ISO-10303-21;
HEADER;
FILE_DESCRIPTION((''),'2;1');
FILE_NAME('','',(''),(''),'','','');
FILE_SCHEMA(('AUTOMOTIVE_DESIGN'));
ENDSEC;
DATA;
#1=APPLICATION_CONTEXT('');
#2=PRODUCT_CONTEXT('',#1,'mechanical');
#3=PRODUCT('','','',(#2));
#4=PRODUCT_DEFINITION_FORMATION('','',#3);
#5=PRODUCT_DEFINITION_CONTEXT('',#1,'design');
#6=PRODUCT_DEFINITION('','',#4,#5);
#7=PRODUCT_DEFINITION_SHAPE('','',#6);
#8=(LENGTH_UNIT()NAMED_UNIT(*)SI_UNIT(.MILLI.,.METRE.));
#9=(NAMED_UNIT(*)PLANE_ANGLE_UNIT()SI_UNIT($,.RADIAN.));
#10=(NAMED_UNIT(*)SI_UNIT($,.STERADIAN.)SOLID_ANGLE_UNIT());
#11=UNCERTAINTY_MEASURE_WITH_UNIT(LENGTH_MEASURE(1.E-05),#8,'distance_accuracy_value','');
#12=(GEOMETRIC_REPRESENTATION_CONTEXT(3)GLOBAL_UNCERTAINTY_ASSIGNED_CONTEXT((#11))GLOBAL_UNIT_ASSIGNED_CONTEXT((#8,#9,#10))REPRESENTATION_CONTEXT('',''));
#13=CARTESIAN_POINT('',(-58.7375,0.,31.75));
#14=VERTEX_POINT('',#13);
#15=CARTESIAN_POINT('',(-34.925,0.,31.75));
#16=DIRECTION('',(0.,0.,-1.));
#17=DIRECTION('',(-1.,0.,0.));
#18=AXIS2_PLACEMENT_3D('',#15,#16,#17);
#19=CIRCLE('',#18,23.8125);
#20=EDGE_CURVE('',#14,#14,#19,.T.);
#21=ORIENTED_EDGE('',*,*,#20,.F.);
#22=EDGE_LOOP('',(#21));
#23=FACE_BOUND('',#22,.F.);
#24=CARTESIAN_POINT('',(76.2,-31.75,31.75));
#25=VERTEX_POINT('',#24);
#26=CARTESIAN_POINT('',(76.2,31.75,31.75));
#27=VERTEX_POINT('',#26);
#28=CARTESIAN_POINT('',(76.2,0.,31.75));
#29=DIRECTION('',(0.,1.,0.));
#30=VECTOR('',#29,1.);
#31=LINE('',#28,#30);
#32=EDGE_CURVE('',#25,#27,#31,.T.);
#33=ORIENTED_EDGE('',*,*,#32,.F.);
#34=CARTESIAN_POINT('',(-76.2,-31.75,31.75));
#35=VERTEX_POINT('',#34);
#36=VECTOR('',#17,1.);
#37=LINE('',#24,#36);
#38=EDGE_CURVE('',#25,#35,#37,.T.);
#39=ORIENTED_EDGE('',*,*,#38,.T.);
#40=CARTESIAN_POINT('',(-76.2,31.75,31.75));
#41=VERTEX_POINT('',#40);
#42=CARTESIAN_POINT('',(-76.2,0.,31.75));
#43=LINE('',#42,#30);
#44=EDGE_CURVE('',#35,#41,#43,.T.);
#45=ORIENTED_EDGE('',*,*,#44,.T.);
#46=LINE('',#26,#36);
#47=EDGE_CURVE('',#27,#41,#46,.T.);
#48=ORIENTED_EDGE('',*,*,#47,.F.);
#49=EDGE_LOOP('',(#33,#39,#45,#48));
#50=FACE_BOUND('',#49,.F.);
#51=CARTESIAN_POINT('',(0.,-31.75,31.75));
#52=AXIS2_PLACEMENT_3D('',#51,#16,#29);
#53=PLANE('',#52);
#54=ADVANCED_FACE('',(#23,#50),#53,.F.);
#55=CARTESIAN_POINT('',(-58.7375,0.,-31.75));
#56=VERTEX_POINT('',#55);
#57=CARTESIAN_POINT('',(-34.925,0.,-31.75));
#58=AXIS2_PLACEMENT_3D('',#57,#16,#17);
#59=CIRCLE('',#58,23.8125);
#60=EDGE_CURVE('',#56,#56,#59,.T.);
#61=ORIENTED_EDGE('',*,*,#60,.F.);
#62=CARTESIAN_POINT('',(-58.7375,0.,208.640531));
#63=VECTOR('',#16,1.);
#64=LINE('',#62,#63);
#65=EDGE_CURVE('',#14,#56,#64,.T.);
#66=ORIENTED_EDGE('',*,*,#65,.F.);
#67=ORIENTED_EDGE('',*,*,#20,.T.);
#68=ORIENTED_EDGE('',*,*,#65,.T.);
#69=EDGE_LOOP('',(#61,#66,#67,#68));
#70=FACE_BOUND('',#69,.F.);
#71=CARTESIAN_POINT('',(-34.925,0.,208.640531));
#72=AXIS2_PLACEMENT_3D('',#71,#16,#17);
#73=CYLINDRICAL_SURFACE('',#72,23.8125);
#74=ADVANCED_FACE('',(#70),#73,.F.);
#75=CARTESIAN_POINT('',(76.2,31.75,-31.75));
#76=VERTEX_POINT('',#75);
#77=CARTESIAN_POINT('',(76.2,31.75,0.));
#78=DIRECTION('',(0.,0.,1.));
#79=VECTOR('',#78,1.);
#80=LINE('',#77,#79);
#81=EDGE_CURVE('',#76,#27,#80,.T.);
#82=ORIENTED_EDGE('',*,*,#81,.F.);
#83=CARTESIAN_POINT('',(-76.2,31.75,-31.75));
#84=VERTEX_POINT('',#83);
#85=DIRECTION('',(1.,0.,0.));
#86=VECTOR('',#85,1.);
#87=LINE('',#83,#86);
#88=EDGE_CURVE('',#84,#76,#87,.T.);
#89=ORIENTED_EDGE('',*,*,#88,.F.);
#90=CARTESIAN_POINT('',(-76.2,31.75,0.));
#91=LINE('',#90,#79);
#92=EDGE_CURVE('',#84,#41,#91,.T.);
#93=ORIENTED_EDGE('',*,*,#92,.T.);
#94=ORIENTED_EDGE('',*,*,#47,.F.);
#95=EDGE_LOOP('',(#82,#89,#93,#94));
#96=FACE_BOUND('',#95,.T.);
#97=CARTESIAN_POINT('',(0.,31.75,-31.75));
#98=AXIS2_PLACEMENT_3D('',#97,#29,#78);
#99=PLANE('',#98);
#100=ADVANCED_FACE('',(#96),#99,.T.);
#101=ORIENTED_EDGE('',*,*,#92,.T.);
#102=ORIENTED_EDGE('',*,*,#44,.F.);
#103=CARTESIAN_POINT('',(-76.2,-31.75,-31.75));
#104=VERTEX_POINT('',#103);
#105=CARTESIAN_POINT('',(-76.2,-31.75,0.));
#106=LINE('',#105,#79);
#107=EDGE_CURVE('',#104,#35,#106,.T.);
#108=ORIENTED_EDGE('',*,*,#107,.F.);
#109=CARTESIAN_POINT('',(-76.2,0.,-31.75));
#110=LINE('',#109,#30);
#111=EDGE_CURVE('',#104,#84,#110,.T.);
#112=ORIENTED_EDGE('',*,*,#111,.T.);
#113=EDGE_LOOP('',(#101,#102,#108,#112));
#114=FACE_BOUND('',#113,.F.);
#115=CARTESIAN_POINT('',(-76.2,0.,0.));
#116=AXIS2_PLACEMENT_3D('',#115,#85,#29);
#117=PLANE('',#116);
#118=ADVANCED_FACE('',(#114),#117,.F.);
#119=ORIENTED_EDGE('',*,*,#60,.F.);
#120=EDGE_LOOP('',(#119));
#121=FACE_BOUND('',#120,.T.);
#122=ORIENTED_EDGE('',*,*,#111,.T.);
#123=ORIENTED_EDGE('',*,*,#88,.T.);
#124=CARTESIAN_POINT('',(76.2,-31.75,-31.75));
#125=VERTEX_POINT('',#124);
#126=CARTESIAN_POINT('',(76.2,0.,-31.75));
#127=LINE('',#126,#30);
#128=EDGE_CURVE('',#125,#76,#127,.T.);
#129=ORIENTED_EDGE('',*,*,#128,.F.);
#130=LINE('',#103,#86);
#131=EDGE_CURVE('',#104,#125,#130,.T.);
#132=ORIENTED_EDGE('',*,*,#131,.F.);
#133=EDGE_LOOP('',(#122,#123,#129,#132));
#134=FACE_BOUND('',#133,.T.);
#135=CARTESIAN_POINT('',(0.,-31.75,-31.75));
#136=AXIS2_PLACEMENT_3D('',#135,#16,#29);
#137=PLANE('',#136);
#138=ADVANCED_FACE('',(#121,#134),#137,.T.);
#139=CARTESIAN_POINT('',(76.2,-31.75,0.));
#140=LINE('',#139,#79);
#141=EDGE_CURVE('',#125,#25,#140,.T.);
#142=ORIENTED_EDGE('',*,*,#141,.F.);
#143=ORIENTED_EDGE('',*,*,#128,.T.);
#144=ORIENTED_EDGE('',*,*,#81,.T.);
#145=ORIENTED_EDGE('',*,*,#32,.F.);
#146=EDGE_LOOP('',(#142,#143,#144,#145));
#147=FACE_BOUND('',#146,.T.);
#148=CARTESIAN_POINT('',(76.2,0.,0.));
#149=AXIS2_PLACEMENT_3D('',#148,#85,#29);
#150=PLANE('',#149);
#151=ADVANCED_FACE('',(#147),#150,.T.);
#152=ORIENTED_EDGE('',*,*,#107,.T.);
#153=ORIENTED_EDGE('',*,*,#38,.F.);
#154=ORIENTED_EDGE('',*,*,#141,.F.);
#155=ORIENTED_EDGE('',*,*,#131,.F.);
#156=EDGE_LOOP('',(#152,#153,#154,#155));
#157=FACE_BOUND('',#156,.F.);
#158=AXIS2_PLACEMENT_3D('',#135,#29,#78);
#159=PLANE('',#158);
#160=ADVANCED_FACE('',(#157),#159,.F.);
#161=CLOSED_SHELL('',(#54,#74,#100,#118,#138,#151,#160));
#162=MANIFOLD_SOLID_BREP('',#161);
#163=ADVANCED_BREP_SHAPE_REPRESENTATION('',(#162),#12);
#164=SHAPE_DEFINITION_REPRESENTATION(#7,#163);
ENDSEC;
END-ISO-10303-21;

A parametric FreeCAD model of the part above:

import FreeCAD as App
import Part
import Sketcher
from FreeCAD import Vector
Q = App.Units.Quantity


def add_polygon(sketch, points):
    """Adds a closed chain of lines whose ends are joined by coincident constraints."""
    first, n = sketch.GeometryCount, len(points)
    for a, b in zip(points, points[1:] + points[:1]):
        sketch.addGeometry(Part.LineSegment(App.Vector(*a, 0), App.Vector(*b, 0)), False)
    for i in range(n):
        sketch.addConstraint(Sketcher.Constraint("Coincident", first + i, 2, first + (i + 1) % n, 1))

doc = App.newDocument("Part")
body = doc.addObject("PartDesign::Body", "Body")

# Sketch on YZ plane
sketch1 = body.newObject("Sketcher::SketchObject", "Sketch")
sketch1.AttachmentSupport = (doc.getObject("YZ_Plane"), [""])
sketch1.MapMode = "FlatFace"
add_polygon(sketch1, [(-31.75, 31.75), (-31.75, -31.75), (31.75, -31.75), (31.75, 31.75)])  # lines 0-3
sketch1.addConstraint([
    Sketcher.Constraint("Vertical", 0),
    Sketcher.Constraint("Horizontal", 1),
    Sketcher.Constraint("Vertical", 2),
    Sketcher.Constraint("Horizontal", 3),
    Sketcher.Constraint("Symmetric", 0, 2, 2, 2, -1, 1),
    Sketcher.Constraint("Equal", 3, 0),
    Sketcher.Constraint("DistanceX", 1, 1, 1, 2, Q("2.5 in")),
])
pad1 = body.newObject("PartDesign::Pad", "Pad")
pad1.Profile = sketch1
pad1.Length = Q("6 in")
pad1.Midplane = True

# Sketch on XY plane
sketch2 = body.newObject("Sketcher::SketchObject", "Sketch001")
sketch2.AttachmentSupport = (doc.getObject("XY_Plane"), [""])
sketch2.MapMode = "FlatFace"
sketch2.AttachmentOffset = App.Placement(Vector(0, 0, 1.25 * 25.4), App.Rotation())
sketch2.addGeometry(Part.Circle(Vector(-34.925, 0, 0), Vector(0, 0, 1), 23.8125), False)
sketch2.addConstraint([
    Sketcher.Constraint("PointOnObject", 0, 3, -1),
    Sketcher.Constraint("Diameter", 0, Q("1.875 in")),
    Sketcher.Constraint("DistanceX", 0, 3, -1, 1, Q("1.375 in")),
])
doc.recompute()
hole = body.newObject("PartDesign::Hole", "Hole")
hole.Profile = sketch2
hole.ThreadType = "None"
hole.Diameter = Q("1.875 in")
hole.DepthType = "ThroughAll"

doc.recompute()
